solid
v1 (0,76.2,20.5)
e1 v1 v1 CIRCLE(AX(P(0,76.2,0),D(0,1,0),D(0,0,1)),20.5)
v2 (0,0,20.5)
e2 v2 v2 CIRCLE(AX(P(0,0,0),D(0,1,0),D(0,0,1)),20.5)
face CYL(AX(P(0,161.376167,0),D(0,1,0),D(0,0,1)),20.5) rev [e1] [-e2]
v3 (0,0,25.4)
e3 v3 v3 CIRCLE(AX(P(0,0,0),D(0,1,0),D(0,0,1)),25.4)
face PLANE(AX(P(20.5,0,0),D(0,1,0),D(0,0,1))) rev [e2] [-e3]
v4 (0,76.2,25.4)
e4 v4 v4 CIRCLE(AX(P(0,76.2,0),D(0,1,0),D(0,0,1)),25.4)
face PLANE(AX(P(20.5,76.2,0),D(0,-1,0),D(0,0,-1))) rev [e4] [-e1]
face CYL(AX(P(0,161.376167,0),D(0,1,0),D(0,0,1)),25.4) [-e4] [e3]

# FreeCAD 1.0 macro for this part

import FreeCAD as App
import Part
import Sketcher

V = App.Vector
Q = App.Units.Quantity


def add_polygon(sketch, points):
    """Adds a closed chain of lines whose ends are joined by coincident constraints."""
    first, n = sketch.GeometryCount, len(points)
    for a, b in zip(points, points[1:] + points[:1]):
        sketch.addGeometry(Part.LineSegment(App.Vector(*a, 0), App.Vector(*b, 0)), False)
    for i in range(n):
        sketch.addConstraint(Sketcher.Constraint("Coincident", first + i, 2, first + (i + 1) % n, 1))

doc = App.newDocument("Part")
body = doc.addObject("PartDesign::Body", "Body")

# Sketch on XY plane
sketch1 = doc.addObject("Sketcher::SketchObject", "Sketch")
body.addObject(sketch1)
sketch1.AttachmentSupport = (doc.XY_Plane, [""])
sketch1.MapMode = "FlatFace"
add_polygon(sketch1, [(20.5, 76.2), (20.5, 0), (25.4, 0), (25.4, 76.2)])  # lines 0-3
sketch1.addConstraint([
    Sketcher.Constraint("Vertical", 0),
    Sketcher.Constraint("Horizontal", 1),
    Sketcher.Constraint("Vertical", 2),
    Sketcher.Constraint("Horizontal", 3),
    Sketcher.Constraint("PointOnObject", 0, 2, -1),
    Sketcher.Constraint("DistanceX", 1, 1, 1, 2, Q("4.9 mm")),
    Sketcher.Constraint("DistanceY", 0, 2, 0, 1, Q("76.2 mm")),
    Sketcher.Constraint("DistanceX", -1, 1, 0, 2, Q("20.5 mm")),
])
revolution = doc.addObject("PartDesign::Revolution", "Revolution")
body.addObject(revolution)
revolution.Profile = sketch1
revolution.ReferenceAxis = (sketch1, ["V_Axis"])
revolution.Angle = 360

doc.recompute()
